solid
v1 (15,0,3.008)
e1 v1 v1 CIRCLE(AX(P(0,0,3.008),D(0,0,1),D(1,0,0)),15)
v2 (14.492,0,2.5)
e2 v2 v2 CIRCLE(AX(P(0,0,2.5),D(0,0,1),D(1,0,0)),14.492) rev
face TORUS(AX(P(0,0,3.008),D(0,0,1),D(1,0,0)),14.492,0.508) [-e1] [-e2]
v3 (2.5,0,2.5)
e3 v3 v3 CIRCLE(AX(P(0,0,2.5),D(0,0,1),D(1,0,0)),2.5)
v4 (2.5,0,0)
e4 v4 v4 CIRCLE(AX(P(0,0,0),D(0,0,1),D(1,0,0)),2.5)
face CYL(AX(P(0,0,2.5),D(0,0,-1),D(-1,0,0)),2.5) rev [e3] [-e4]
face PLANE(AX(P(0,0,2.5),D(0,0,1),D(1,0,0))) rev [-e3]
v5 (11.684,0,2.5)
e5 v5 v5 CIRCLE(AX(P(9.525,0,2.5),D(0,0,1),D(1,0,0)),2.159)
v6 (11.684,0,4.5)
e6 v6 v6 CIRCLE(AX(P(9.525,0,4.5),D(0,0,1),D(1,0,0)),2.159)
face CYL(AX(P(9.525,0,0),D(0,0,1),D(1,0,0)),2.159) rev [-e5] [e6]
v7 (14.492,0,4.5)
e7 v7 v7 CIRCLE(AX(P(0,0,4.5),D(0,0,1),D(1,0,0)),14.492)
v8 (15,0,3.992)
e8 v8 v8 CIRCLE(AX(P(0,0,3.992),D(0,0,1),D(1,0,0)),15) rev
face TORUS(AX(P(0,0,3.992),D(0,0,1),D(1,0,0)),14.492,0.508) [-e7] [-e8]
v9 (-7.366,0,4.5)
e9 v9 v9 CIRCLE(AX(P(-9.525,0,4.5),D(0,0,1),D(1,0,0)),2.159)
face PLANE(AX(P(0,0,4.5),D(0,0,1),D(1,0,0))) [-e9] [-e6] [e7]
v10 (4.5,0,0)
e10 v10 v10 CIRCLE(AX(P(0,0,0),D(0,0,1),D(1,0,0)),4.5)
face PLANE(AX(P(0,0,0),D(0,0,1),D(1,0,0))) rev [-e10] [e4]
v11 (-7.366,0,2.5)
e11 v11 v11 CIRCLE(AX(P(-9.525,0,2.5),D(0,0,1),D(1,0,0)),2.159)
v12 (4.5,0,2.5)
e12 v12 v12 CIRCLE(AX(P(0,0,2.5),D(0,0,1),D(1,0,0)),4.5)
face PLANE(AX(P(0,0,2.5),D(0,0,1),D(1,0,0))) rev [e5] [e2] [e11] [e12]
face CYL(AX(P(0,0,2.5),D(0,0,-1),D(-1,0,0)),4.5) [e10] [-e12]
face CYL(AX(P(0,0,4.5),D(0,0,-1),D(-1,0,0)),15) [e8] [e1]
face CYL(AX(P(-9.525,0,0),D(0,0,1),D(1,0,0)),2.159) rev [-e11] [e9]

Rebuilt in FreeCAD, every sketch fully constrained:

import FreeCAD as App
import Part
import Sketcher
from FreeCAD import Vector


def edges_at(feature, points):
    """Names of the edges that pass closest to the given points."""
    edges = feature.Shape.Edges
    near = lambda p: min(range(len(edges)), key=lambda i: edges[i].distToShape(Part.Vertex(*p))[0])
    return sorted({f"Edge{near(p) + 1}" for p in points})

doc = App.newDocument("Part")
body = doc.addObject("PartDesign::Body", "Body")

# Sketch on XY plane
sketch1 = body.newObject("Sketcher::SketchObject", "Sketch")
sketch1.AttachmentSupport = (doc.getObject("XY_Plane"), [""])
sketch1.MapMode = "FlatFace"
sketch1.addGeometry([
    Part.Circle(Vector(0, 0, 0), Vector(0, 0, 1), 4.5),
    Part.Circle(Vector(0, 0, 0), Vector(0, 0, 1), 2.5),
], False)
sketch1.addConstraint([
    Sketcher.Constraint("Coincident", 0, 3, -1, 1),
    Sketcher.Constraint("Coincident", 1, 3, -1, 1),
    Sketcher.Constraint("Diameter", 0, 9.0),
    Sketcher.Constraint("Diameter", 1, 5.0),
])
pad1 = body.newObject("PartDesign::Pad", "Pad")
pad1.Profile = sketch1
pad1.Length = 2.5

# Sketch on XY plane
sketch2 = body.newObject("Sketcher::SketchObject", "Sketch001")
sketch2.AttachmentSupport = (doc.getObject("XY_Plane"), [""])
sketch2.MapMode = "FlatFace"
sketch2.AttachmentOffset = App.Placement(Vector(0, 0, 2.5), App.Rotation())
sketch2.addGeometry(Part.Circle(Vector(0, 0, 0), Vector(0, 0, 1), 15), False)
sketch2.addConstraint([
    Sketcher.Constraint("Coincident", 0, 3, -1, 1),
    Sketcher.Constraint("Diameter", 0, 30.0),
])
pad2 = body.newObject("PartDesign::Pad", "Pad001")
pad2.Profile = sketch2
pad2.Length = 2

# Sketch on XY plane
sketch3 = body.newObject("Sketcher::SketchObject", "Sketch002")
sketch3.AttachmentSupport = (doc.getObject("XY_Plane"), [""])
sketch3.MapMode = "FlatFace"
sketch3.AttachmentOffset = App.Placement(Vector(0, 0, 4.5), App.Rotation())
sketch3.addGeometry([
    Part.Circle(Vector(-9.5, 0, 0), Vector(0, 0, 1), 2.2),
    Part.Circle(Vector(9.5, 0, 0), Vector(0, 0, 1), 2.2),
], False)
sketch3.addConstraint([
    Sketcher.Constraint("Equal", 0, 1),
    Sketcher.Constraint("Symmetric", 0, 3, 1, 3, -1, 1),
    Sketcher.Constraint("PointOnObject", 0, 3, -1),
    Sketcher.Constraint("Diameter", 0, 4.318),
    Sketcher.Constraint("DistanceX", 0, 3, 1, 3, 19.05),
])
pocket1 = body.newObject("PartDesign::Pocket", "Pocket")
pocket1.Profile = sketch3
pocket1.Type = "ThroughAll"
pocket1.Midplane = True
doc.recompute()

fillet = body.newObject("PartDesign::Fillet", "Fillet")
fillet.Base = (pocket1, edges_at(pocket1, [(-15, 0, 4.5), (-15, 0, 2.5)]))
fillet.Radius = 0.508

doc.recompute()
